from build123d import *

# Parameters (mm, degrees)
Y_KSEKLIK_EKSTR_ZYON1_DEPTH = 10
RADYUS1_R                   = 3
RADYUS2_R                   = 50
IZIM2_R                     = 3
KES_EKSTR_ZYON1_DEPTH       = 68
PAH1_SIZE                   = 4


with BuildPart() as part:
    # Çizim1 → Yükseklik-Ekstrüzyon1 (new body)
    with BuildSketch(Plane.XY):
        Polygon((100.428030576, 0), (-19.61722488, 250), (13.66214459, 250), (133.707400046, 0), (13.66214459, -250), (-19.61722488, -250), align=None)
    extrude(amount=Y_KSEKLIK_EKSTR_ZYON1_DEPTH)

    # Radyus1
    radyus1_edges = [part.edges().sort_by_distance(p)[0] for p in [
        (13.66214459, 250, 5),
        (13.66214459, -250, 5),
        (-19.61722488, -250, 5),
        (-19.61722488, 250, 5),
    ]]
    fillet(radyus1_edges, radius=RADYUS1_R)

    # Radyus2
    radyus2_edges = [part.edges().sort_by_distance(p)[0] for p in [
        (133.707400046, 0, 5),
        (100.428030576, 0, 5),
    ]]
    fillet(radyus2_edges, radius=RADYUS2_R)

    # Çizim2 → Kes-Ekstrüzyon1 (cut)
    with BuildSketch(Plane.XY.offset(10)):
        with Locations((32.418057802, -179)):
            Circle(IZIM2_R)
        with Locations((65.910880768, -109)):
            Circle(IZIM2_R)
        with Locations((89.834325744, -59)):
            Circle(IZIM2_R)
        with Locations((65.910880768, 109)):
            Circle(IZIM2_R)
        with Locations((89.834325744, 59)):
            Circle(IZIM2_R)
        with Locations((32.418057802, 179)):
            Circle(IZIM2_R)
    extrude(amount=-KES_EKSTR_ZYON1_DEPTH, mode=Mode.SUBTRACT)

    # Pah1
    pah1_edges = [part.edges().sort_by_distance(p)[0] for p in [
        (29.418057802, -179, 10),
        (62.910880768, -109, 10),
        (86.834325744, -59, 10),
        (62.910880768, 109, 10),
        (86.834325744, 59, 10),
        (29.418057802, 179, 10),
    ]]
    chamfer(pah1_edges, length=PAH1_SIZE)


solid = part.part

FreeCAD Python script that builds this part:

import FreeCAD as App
import Part
import Sketcher

V = App.Vector
Q = App.Units.Quantity


def edges_at(feature, points):
    """Names of the edges that pass closest to the given points."""
    edges = feature.Shape.Edges
    near = lambda p: min(range(len(edges)), key=lambda i: edges[i].distToShape(Part.Vertex(*p))[0])
    return sorted({f"Edge{near(p) + 1}" for p in points})

doc = App.newDocument("Part")
body = doc.addObject("PartDesign::Body", "Body")

# Sketch on XY plane
sketch1 = body.newObject("Sketcher::SketchObject", "Sketch")
sketch1.AttachmentSupport = (doc.getObject("XY_Plane"), [""])
sketch1.MapMode = "FlatFace"
sketch1.addGeometry([
    Part.LineSegment(V(-20, 250, 0), V(100, 0, 0)),  # 0
    Part.LineSegment(V(100, 0, 0), V(-20, -250, 0)),  # 1
    Part.LineSegment(V(-20, -250, 0), V(14, -250, 0)),  # 2
    Part.LineSegment(V(14, -250, 0), V(134, 0, 0)),  # 3
    Part.LineSegment(V(134, 0, 0), V(14, 250, 0)),  # 4
    Part.LineSegment(V(14, 250, 0), V(-20, 250, 0)),  # 5
], False)
sketch1.addConstraint([
    Sketcher.Constraint("Coincident", 0, 2, 1, 1),
    Sketcher.Constraint("Coincident", 1, 2, 2, 1),
    Sketcher.Constraint("Coincident", 2, 2, 3, 1),
    Sketcher.Constraint("Coincident", 3, 2, 4, 1),
    Sketcher.Constraint("Coincident", 4, 2, 5, 1),
    Sketcher.Constraint("Coincident", 5, 2, 0, 1),
    Sketcher.Constraint("Horizontal", 2),
    Sketcher.Constraint("Horizontal", 5),
    Sketcher.Constraint("Symmetric", 2, 2, 4, 2, -1),
    Sketcher.Constraint("PointOnObject", 0, 2, -1),
    Sketcher.Constraint("PointOnObject", 3, 2, -1),
    Sketcher.Constraint("Parallel", 1, 3),
    Sketcher.Constraint("Parallel", 0, 4),
    Sketcher.Constraint("DistanceY", 1, 2, -1, 1, Q("250 mm")),
    Sketcher.Constraint("DistanceX", 2, 1, 2, 2, Q("33.279369 mm")),
    Sketcher.Constraint("DistanceX", -1, 1, 3, 2, Q("133.7074 mm")),
    Sketcher.Constraint("Distance", 0, Q("277.328079 mm")),
])
pad1 = body.newObject("PartDesign::Pad", "Pad")
pad1.Profile = sketch1
pad1.Length = 10
doc.recompute()

fillet = body.newObject("PartDesign::Fillet", "Fillet")
fillet.Base = (pad1, edges_at(pad1, [
    (13.662, 250, 5),
    (13.662, -250, 5),
    (-19.617, -250, 5),
    (-19.617, 250, 5),
]))
fillet.Radius = 3
doc.recompute()

fillet2 = body.newObject("PartDesign::Fillet", "Fillet001")
fillet2.Base = (fillet, edges_at(fillet, [(133.707, 0, 5), (100.428, 0, 5)]))
fillet2.Radius = 50

# Sketch on XY plane
sketch2 = body.newObject("Sketcher::SketchObject", "Sketch001")
sketch2.AttachmentSupport = (doc.getObject("XY_Plane"), [""])
sketch2.MapMode = "FlatFace"
sketch2.AttachmentOffset = App.Placement(V(0, 0, 10), App.Rotation())
sketch2.addGeometry([
    Part.Circle(V(32.4, -179, 0), V(0, 0, 1), 3),  # 0
    Part.Circle(V(65.9, -109, 0), V(0, 0, 1), 3),  # 1
    Part.Circle(V(89.8, -59, 0), V(0, 0, 1), 3),  # 2
    Part.Circle(V(65.9, 109, 0), V(0, 0, 1), 3),  # 3
    Part.Circle(V(89.8, 59, 0), V(0, 0, 1), 3),  # 4
    Part.Circle(V(32.4, 179, 0), V(0, 0, 1), 3),  # 5
], False)
sketch2.addConstraint([
    Sketcher.Constraint("Equal", 0, 1),
    Sketcher.Constraint("Equal", 1, 2),
    Sketcher.Constraint("Equal", 2, 3),
    Sketcher.Constraint("Equal", 3, 4),
    Sketcher.Constraint("Equal", 4, 5),
    Sketcher.Constraint("Symmetric", 1, 3, 3, 3, -1),
    Sketcher.Constraint("Symmetric", 2, 3, 4, 3, -1),
    Sketcher.Constraint("Symmetric", 0, 3, 5, 3, -1),
    Sketcher.Constraint("Diameter", 0, Q("6 mm")),
    Sketcher.Constraint("DistanceY", 0, 3, -1, 1, Q("179 mm")),
    Sketcher.Constraint("DistanceY", 1, 3, -1, 1, Q("109 mm")),
    Sketcher.Constraint("DistanceY", 2, 3, -1, 1, Q("59 mm")),
    Sketcher.Constraint("DistanceX", -1, 1, 1, 3, Q("65.910881 mm")),
    Sketcher.Constraint("DistanceX", -1, 1, 0, 3, Q("32.418058 mm")),
    Sketcher.Constraint("DistanceX", -1, 1, 2, 3, Q("89.834326 mm")),
])
pocket1 = body.newObject("PartDesign::Pocket", "Pocket")
pocket1.Profile = sketch2
pocket1.Length = 68
doc.recompute()

chamfer = body.newObject("PartDesign::Chamfer", "Chamfer")
chamfer.Base = (pocket1, edges_at(pocket1, [
    (29.418, -179, 10),
    (62.911, -109, 10),
    (86.834, -59, 10),
    (62.911, 109, 10),
    (86.834, 59, 10),
    (29.418, 179, 10),
]))
chamfer.Size = 4

doc.recompute()
